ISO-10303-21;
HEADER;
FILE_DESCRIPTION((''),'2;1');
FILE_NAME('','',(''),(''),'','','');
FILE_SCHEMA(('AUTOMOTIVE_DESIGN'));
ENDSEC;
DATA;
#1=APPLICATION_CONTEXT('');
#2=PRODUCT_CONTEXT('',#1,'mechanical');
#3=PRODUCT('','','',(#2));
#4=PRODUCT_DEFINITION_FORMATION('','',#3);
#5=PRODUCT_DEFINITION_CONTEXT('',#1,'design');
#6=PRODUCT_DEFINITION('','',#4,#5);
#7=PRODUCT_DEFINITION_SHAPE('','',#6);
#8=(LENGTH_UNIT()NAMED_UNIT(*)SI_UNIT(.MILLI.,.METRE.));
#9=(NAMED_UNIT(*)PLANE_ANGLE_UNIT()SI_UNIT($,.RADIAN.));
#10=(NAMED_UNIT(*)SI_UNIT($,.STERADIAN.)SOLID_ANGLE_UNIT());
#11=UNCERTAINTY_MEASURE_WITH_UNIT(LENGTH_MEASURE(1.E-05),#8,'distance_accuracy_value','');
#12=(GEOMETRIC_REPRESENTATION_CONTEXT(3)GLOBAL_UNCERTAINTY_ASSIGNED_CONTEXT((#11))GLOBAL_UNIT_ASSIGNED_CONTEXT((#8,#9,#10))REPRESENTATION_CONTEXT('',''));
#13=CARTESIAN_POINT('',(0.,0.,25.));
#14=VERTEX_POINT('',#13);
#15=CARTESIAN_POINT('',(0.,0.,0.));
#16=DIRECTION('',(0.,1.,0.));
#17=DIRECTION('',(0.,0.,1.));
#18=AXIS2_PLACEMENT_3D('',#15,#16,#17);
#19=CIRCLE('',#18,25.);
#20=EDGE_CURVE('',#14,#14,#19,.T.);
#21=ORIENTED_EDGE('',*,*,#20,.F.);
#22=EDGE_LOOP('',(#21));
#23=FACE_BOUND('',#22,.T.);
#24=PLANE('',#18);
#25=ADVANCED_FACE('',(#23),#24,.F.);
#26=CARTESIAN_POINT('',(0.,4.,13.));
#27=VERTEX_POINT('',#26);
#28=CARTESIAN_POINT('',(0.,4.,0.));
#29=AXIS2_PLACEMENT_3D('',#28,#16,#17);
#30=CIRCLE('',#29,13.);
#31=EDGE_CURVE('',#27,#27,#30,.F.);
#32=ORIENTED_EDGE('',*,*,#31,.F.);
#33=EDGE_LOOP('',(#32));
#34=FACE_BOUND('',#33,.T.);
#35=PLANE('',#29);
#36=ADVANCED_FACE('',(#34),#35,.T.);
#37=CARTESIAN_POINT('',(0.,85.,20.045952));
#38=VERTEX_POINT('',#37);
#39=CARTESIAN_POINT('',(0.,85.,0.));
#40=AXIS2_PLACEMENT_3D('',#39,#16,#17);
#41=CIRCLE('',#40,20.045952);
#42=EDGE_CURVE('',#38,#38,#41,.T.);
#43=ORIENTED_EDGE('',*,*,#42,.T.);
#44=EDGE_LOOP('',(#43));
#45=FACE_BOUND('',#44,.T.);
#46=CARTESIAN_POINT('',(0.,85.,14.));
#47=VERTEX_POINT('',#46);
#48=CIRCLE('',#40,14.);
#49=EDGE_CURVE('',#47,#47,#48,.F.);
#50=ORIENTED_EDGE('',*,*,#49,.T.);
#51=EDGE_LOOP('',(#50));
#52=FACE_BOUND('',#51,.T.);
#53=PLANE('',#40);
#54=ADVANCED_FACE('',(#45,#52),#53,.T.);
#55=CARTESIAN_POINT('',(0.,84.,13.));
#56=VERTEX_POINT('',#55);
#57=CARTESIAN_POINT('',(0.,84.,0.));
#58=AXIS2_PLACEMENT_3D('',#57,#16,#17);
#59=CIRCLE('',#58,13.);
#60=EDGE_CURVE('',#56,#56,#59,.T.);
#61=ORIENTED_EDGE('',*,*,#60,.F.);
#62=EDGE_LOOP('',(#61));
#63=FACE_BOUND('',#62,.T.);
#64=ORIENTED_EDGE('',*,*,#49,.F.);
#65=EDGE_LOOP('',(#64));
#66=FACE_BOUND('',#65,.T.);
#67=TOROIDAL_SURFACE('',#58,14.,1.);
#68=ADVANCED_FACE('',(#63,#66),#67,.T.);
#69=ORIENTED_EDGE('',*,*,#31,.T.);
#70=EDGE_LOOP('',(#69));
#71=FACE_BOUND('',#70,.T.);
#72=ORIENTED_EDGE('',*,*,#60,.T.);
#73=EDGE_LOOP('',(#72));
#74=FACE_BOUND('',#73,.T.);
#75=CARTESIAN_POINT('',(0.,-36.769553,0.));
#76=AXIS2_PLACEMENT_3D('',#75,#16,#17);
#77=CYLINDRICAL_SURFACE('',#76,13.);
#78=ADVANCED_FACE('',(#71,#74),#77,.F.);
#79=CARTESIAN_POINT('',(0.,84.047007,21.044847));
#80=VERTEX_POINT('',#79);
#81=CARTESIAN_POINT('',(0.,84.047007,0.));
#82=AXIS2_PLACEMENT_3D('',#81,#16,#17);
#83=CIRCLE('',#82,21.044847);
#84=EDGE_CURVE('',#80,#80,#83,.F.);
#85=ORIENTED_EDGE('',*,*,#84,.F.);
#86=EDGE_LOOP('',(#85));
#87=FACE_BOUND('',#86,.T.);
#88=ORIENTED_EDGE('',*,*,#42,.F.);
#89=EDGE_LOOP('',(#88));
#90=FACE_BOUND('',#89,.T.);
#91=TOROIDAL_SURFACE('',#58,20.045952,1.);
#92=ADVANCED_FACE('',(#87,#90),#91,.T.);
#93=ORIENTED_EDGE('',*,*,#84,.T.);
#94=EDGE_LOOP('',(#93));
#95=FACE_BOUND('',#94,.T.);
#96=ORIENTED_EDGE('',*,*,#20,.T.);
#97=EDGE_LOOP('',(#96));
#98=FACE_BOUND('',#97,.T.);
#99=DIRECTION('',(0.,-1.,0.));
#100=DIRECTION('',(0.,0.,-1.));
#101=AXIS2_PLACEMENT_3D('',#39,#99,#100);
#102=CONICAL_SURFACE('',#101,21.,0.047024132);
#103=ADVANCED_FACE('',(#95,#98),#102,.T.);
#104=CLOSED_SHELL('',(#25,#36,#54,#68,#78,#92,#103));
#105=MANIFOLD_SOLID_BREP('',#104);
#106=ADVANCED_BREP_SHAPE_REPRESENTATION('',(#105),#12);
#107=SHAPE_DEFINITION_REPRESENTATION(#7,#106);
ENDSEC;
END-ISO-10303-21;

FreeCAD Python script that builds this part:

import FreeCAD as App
import Part
import Sketcher
from FreeCAD import Vector
Q = App.Units.Quantity


def edges_at(feature, points):
    """Names of the edges that pass closest to the given points."""
    edges = feature.Shape.Edges
    near = lambda p: min(range(len(edges)), key=lambda i: edges[i].distToShape(Part.Vertex(*p))[0])
    return sorted({f"Edge{near(p) + 1}" for p in points})

doc = App.newDocument("Part")
body = doc.addObject("PartDesign::Body", "Body")

sketch1 = body.newObject("Sketcher::SketchObject", "Sketch")
sketch1.AttachmentSupport = (doc.getObject("XZ_Plane"), [""])
sketch1.MapMode = "FlatFace"
sketch1.AttachmentOffset = App.Placement(Vector(0, 0, -85), App.Rotation())
sketch1.addGeometry(Part.Circle(Vector(0, 0, 0), Vector(0, 0, 1), 21), False)
sketch1.addConstraint(Sketcher.Constraint("Coincident", 0, 3, -1, 1))
sketch1.addConstraint(Sketcher.Constraint("Diameter", 0, Q("42 mm")))

sketch2 = body.newObject("Sketcher::SketchObject", "Sketch001")
sketch2.AttachmentSupport = (doc.getObject("XZ_Plane"), [""])
sketch2.MapMode = "FlatFace"
sketch2.addGeometry(Part.Circle(Vector(0, 0, 0), Vector(0, 0, 1), 25), False)
sketch2.addConstraint(Sketcher.Constraint("Coincident", 0, 3, -1, 1))
sketch2.addConstraint(Sketcher.Constraint("Diameter", 0, Q("50 mm")))

additiveloft = body.newObject("PartDesign::AdditiveLoft", "AdditiveLoft")
additiveloft.Profile = sketch1
additiveloft.Sections = [sketch2]

sketch3 = body.newObject("Sketcher::SketchObject", "Sketch002")
sketch3.AttachmentSupport = (doc.getObject("XZ_Plane"), [""])
sketch3.MapMode = "FlatFace"
sketch3.AttachmentOffset = App.Placement(Vector(0, 0, -85), App.Rotation())
sketch3.addGeometry(Part.Circle(Vector(0, 0, 0), Vector(0, 0, 1), 13), False)
sketch3.addConstraint(Sketcher.Constraint("Coincident", 0, 3, -1, 1))
sketch3.addConstraint(Sketcher.Constraint("Diameter", 0, Q("26 mm")))
pocket1 = body.newObject("PartDesign::Pocket", "Pocket")
pocket1.Profile = sketch3
pocket1.Length = 81
pocket1.Reversed = True
doc.recompute()

fillet = body.newObject("PartDesign::Fillet", "Fillet")
fillet.Base = (pocket1, edges_at(pocket1, [(-21, 85, 0), (-13, 85, 0)]))
fillet.Radius = 1

doc.recompute()
